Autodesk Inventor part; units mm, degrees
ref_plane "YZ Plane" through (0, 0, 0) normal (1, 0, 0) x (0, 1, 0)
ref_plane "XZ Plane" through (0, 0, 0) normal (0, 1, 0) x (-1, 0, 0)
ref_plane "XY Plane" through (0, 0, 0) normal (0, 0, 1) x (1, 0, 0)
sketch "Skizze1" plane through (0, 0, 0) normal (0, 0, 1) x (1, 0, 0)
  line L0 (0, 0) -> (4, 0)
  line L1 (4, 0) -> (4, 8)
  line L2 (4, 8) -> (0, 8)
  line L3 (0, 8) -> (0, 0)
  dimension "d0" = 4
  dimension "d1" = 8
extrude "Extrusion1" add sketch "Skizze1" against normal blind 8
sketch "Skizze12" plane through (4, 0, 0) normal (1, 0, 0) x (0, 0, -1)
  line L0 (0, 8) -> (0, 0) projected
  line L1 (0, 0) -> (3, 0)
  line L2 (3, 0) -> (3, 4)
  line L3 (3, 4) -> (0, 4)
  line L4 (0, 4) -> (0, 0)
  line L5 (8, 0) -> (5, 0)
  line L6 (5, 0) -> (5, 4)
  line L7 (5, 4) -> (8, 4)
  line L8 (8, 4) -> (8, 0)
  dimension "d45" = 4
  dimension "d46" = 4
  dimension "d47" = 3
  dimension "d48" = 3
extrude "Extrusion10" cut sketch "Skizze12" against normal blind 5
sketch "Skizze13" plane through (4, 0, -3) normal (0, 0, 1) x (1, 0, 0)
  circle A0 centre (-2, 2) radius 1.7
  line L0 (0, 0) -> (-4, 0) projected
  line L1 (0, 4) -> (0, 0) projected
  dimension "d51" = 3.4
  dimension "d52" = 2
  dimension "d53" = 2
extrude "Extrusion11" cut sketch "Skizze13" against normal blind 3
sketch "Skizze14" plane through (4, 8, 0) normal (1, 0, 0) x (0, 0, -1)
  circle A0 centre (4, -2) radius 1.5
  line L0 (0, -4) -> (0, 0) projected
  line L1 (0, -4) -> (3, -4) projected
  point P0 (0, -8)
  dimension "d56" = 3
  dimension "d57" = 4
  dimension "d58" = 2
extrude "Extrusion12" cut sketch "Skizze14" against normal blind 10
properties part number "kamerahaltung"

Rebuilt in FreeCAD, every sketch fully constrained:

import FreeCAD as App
import Part
import Sketcher
from FreeCAD import Vector


def add_polygon(sketch, points):
    """Adds a closed chain of lines whose ends are joined by coincident constraints."""
    first, n = sketch.GeometryCount, len(points)
    for a, b in zip(points, points[1:] + points[:1]):
        sketch.addGeometry(Part.LineSegment(App.Vector(*a, 0), App.Vector(*b, 0)), False)
    for i in range(n):
        sketch.addConstraint(Sketcher.Constraint("Coincident", first + i, 2, first + (i + 1) % n, 1))

doc = App.newDocument("Part")
params = doc.addObject("Spreadsheet::Sheet", "Params")
for row, (alias, value) in enumerate([
    ("sketch1_width", "4 mm"),
    ("sketch1_height", "8 mm"),
    ("pad1_length", "8 mm"),
    ("sketch2_width", "4 mm"),
    ("sketch2_height", "3 mm"),
    ("pocket1_length", "5 mm"),
    ("sketch3_diameter", "3.4 mm"),
    ("pocket2_length", "3 mm"),
    ("sketch4_diameter", "3 mm"),
    ("pocket3_length", "10 mm"),
], start=1):
    params.set(f"A{row}", alias)
    params.set(f"B{row}", "=" + value)
    params.setAlias(f"B{row}", alias)

body = doc.addObject("PartDesign::Body", "Body")

sketch1 = doc.addObject("Sketcher::SketchObject", "Sketch")
body.addObject(sketch1)
sketch1.AttachmentSupport = (doc.XY_Plane, [""])
sketch1.MapMode = "FlatFace"
add_polygon(sketch1, [(0, 8), (0, 0), (4, 0), (4, 8)])
sketch1.addConstraint([
    Sketcher.Constraint("Vertical", 0),
    Sketcher.Constraint("Horizontal", 1),
    Sketcher.Constraint("Vertical", 2),
    Sketcher.Constraint("Horizontal", 3),
    Sketcher.Constraint("Coincident", 0, 2, -1, 1),
    Sketcher.Constraint("DistanceX", 1, 1, 1, 2, 4.0),
    Sketcher.Constraint("DistanceY", 0, 2, 0, 1, 8.0),
])
sketch1.setExpression("Constraints[9]", "Params.sketch1_width")
sketch1.setExpression("Constraints[10]", "Params.sketch1_height")
pad1 = doc.addObject("PartDesign::Pad", "Pad")
body.addObject(pad1)
pad1.Profile = sketch1
pad1.setExpression("Length", "Params.pad1_length")
pad1.Reversed = True

sketch2 = doc.addObject("Sketcher::SketchObject", "Sketch001")
body.addObject(sketch2)
sketch2.AttachmentSupport = (doc.YZ_Plane, [""])
sketch2.MapMode = "FlatFace"
sketch2.AttachmentOffset = App.Placement(Vector(0, 0, 4), App.Rotation())
add_polygon(sketch2, [(4, -3), (4, 0), (0, 0), (0, -3)])
add_polygon(sketch2, [(0, -5), (0, -8), (4, -8), (4, -5)])
sketch2.addConstraint([
    Sketcher.Constraint("Vertical", 0),
    Sketcher.Constraint("Horizontal", 1),
    Sketcher.Constraint("Vertical", 2),
    Sketcher.Constraint("Horizontal", 3),
    Sketcher.Constraint("Vertical", 4),
    Sketcher.Constraint("Horizontal", 5),
    Sketcher.Constraint("Vertical", 6),
    Sketcher.Constraint("Horizontal", 7),
    Sketcher.Constraint("Coincident", 1, 2, -1, 1),
    Sketcher.Constraint("PointOnObject", 4, 2, -2),
    Sketcher.Constraint("Vertical", 3, 2, 5, 2),
    Sketcher.Constraint("Equal", 2, 4),
    Sketcher.Constraint("DistanceX", 1, 2, 1, 1, 4.0),
    Sketcher.Constraint("DistanceY", 0, 1, 0, 2, 3.0),
    Sketcher.Constraint("DistanceY", 4, 2, -1, 1, 8.0),
])
sketch2.setExpression("Constraints[20]", "Params.sketch2_width")
sketch2.setExpression("Constraints[21]", "Params.sketch2_height")
pocket1 = doc.addObject("PartDesign::Pocket", "Pocket")
body.addObject(pocket1)
pocket1.Profile = sketch2
pocket1.setExpression("Length", "Params.pocket1_length")

sketch3 = doc.addObject("Sketcher::SketchObject", "Sketch002")
body.addObject(sketch3)
sketch3.AttachmentSupport = (doc.XY_Plane, [""])
sketch3.MapMode = "FlatFace"
sketch3.AttachmentOffset = App.Placement(Vector(0, 0, -3), App.Rotation())
sketch3.addGeometry(Part.Circle(Vector(2, 2, 0), Vector(0, 0, 1), 1.7), False)
sketch3.addConstraint([
    Sketcher.Constraint("Diameter", 0, 3.4),
    Sketcher.Constraint("DistanceX", -1, 1, 0, 3, 2.0),
    Sketcher.Constraint("DistanceY", -1, 1, 0, 3, 2.0),
])
sketch3.setExpression("Constraints[0]", "Params.sketch3_diameter")
pocket2 = doc.addObject("PartDesign::Pocket", "Pocket001")
body.addObject(pocket2)
pocket2.Profile = sketch3
pocket2.setExpression("Length", "Params.pocket2_length")

sketch4 = doc.addObject("Sketcher::SketchObject", "Sketch003")
body.addObject(sketch4)
sketch4.AttachmentSupport = (doc.YZ_Plane, [""])
sketch4.MapMode = "FlatFace"
sketch4.AttachmentOffset = App.Placement(Vector(0, 0, 4), App.Rotation())
sketch4.addGeometry(Part.Circle(Vector(6, -4, 0), Vector(0, 0, 1), 1.5), False)
sketch4.addConstraint([
    Sketcher.Constraint("Diameter", 0, 3.0),
    Sketcher.Constraint("DistanceY", 0, 3, -1, 1, 4.0),
    Sketcher.Constraint("DistanceX", -1, 1, 0, 3, 6.0),
])
sketch4.setExpression("Constraints[0]", "Params.sketch4_diameter")
pocket3 = doc.addObject("PartDesign::Pocket", "Pocket002")
body.addObject(pocket3)
pocket3.Profile = sketch4
pocket3.setExpression("Length", "Params.pocket3_length")

doc.recompute()
